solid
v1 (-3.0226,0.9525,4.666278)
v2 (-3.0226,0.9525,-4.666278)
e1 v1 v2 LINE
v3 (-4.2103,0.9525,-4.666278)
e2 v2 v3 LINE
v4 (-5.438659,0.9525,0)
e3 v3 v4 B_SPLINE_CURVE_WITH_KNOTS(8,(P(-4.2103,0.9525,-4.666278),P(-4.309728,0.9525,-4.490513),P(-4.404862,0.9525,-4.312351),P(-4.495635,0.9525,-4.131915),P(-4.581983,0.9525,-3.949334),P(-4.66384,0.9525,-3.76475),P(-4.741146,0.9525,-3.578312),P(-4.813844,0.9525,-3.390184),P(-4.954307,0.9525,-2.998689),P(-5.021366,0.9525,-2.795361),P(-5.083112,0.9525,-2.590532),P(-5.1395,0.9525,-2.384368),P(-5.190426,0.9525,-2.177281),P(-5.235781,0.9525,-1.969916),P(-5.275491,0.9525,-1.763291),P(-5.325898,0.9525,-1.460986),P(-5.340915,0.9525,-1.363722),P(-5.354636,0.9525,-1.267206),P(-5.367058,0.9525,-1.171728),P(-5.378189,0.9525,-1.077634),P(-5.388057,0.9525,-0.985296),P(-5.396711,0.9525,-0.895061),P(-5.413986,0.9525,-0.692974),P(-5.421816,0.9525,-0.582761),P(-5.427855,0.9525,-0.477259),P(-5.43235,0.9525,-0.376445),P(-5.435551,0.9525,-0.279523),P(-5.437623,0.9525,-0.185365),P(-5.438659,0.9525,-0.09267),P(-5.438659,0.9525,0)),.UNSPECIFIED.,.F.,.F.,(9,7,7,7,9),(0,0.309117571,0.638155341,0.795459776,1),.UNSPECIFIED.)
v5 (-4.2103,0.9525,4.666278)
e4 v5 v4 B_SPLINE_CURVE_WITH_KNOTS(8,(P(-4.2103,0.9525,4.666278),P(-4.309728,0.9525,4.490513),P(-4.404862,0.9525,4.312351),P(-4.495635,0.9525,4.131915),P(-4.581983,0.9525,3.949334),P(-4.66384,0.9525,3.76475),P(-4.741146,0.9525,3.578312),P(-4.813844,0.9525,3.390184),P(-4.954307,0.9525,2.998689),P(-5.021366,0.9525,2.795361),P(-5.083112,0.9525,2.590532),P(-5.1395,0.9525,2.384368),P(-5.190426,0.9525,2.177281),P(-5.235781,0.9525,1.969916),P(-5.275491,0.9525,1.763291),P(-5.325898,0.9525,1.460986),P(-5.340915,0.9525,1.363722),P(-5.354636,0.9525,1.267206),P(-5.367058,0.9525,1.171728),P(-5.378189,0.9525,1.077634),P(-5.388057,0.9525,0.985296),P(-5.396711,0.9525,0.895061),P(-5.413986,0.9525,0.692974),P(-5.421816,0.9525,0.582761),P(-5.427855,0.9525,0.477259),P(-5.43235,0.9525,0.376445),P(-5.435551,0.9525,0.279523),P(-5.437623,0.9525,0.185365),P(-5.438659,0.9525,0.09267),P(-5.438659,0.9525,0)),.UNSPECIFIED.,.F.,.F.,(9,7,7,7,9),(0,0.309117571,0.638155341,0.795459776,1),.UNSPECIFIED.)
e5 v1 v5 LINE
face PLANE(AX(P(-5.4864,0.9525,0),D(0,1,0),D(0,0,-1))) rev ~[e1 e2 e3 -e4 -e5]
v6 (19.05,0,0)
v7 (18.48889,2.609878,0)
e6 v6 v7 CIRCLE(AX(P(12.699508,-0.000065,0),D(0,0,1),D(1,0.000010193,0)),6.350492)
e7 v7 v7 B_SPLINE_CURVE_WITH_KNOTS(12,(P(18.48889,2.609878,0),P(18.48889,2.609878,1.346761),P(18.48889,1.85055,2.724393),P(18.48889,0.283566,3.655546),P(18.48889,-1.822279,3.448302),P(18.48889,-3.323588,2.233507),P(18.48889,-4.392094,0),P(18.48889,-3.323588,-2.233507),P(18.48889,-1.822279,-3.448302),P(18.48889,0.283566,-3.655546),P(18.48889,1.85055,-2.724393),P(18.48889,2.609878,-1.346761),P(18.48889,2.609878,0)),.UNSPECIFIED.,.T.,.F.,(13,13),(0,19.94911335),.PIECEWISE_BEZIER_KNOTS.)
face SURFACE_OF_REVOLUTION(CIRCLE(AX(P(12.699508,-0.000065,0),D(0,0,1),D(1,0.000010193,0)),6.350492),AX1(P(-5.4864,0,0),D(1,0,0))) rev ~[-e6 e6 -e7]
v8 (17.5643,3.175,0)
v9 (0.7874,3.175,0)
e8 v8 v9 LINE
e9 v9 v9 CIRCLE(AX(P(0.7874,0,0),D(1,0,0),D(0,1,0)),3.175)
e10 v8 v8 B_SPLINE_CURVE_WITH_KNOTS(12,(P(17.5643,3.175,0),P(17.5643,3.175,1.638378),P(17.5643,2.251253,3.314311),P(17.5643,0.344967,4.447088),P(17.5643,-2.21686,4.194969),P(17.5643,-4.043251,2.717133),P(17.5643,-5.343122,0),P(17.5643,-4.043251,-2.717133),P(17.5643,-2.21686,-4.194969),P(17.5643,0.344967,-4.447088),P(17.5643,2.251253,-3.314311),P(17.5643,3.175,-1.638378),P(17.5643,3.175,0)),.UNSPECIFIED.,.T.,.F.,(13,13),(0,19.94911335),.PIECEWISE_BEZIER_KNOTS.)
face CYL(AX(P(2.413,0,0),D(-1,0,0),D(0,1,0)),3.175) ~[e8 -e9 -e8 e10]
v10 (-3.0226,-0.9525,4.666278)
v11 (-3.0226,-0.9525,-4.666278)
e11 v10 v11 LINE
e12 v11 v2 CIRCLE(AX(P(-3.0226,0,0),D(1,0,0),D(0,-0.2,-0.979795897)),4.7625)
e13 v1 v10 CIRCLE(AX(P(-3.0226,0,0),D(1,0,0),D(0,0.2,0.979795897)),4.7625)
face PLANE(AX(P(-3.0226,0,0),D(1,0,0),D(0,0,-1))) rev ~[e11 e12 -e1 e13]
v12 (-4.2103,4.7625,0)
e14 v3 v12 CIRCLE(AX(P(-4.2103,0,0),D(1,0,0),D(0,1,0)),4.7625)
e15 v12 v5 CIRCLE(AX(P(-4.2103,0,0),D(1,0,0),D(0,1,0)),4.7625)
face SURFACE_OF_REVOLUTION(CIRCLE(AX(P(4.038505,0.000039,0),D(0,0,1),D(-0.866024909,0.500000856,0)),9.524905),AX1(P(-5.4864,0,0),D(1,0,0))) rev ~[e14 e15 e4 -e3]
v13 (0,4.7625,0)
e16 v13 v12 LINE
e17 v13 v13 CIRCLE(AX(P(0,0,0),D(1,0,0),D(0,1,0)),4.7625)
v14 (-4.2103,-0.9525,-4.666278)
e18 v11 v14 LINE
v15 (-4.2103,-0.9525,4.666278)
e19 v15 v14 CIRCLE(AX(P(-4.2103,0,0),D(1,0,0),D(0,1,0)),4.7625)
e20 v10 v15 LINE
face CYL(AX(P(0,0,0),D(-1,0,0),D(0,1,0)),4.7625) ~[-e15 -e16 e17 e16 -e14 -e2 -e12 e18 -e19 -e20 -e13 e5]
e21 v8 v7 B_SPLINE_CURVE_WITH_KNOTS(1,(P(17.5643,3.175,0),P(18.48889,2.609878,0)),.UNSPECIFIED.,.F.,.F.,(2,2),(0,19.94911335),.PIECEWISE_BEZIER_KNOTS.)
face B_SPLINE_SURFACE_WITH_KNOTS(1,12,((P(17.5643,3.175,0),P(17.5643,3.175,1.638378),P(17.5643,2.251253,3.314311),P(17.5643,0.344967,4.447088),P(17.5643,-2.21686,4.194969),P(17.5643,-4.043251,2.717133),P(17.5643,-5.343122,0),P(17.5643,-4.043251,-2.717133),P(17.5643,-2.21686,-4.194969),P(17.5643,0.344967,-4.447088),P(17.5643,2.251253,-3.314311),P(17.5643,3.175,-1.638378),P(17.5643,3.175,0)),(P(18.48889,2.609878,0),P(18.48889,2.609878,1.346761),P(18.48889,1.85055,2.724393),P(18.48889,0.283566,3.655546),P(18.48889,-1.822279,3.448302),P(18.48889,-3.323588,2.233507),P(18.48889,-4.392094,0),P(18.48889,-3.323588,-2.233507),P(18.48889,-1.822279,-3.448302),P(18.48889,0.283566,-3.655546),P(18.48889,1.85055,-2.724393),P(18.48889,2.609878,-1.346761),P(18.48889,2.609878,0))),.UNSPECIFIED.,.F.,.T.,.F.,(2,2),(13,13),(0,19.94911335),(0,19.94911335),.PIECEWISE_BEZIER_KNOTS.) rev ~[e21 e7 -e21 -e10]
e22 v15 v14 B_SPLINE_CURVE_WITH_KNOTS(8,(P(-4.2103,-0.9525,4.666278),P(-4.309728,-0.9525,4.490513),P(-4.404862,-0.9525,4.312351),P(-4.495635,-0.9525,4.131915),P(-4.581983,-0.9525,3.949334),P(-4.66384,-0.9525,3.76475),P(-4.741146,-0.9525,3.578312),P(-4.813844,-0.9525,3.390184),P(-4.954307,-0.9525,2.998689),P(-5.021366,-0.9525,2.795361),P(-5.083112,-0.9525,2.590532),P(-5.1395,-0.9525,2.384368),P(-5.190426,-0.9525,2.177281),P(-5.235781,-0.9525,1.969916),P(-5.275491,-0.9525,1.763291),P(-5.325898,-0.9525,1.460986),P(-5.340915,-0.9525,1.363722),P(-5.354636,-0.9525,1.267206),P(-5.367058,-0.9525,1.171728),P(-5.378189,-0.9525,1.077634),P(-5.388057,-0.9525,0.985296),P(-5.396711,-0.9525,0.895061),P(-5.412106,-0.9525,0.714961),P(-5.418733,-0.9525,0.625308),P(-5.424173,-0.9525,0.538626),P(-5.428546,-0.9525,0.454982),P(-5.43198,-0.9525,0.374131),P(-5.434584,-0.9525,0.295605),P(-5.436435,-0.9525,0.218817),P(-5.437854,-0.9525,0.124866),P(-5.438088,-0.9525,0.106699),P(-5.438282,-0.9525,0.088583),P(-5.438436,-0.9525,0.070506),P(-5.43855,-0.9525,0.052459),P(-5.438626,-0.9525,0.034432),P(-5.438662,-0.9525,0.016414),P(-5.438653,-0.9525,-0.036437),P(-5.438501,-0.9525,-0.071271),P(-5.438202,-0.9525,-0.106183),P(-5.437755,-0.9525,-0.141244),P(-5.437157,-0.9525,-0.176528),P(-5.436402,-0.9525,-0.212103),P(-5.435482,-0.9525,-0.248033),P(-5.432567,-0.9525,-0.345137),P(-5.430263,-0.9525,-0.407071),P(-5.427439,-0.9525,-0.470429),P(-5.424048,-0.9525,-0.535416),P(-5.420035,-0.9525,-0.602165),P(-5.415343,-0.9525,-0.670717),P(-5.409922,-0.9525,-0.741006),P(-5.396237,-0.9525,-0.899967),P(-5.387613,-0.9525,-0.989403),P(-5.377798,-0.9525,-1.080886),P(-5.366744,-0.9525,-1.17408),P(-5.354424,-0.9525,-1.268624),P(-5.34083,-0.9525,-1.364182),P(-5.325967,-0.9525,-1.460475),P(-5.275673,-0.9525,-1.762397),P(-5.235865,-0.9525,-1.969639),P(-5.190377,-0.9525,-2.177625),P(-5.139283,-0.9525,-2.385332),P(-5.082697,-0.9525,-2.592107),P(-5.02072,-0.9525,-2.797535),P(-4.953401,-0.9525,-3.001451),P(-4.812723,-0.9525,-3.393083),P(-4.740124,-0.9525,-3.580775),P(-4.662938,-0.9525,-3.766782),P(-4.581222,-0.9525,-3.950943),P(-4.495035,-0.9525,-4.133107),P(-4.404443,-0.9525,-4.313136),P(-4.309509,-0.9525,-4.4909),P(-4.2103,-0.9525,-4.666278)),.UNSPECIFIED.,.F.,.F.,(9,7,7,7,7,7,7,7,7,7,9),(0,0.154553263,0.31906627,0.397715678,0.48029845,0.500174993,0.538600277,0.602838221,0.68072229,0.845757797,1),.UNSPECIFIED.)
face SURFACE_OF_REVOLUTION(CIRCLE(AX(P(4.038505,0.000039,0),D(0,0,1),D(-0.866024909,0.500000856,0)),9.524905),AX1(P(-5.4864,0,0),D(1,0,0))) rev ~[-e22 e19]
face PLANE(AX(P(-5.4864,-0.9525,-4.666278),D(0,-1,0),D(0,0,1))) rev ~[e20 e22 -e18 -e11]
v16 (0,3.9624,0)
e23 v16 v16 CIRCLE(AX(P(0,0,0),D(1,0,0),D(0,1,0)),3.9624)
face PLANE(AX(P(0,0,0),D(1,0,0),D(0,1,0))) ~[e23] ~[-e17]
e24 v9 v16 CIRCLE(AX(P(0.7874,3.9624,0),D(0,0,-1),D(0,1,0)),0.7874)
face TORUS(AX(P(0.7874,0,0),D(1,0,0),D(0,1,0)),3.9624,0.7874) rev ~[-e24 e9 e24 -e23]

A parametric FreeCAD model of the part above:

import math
import FreeCAD as App
import Part
import Sketcher

V = App.Vector
Q = App.Units.Quantity


def edges_at(feature, points):
    """Names of the edges that pass closest to the given points."""
    edges = feature.Shape.Edges
    near = lambda p: min(range(len(edges)), key=lambda i: edges[i].distToShape(Part.Vertex(*p))[0])
    return sorted({f"Edge{near(p) + 1}" for p in points})

doc = App.newDocument("Part")
body = doc.addObject("PartDesign::Body", "Body")

# Sketch on XY plane
sketch1 = body.newObject("Sketcher::SketchObject", "Sketch")
sketch1.AttachmentSupport = (doc.getObject("XY_Plane"), [""])
sketch1.MapMode = "FlatFace"
sketch1.addGeometry([
    Part.ArcOfCircle(Part.Circle(V(4.0386, 0, 0), V(0, 0, 1), 9.525007), math.radians(150.000024), math.radians(180)),  # 0
    Part.LineSegment(V(-5.4864, 0, 0), V(19.05, 0, 0)),  # 1
    Part.LineSegment(V(19.05, 0, 0), V(19.05, 3.175, 0)),  # 2
    Part.LineSegment(V(19.05, 3.175, 0), V(0, 3.175, 0)),  # 3
    Part.LineSegment(V(0, 3.175, 0), V(0, 4.7625, 0)),  # 4
    Part.LineSegment(V(0, 4.7625, 0), V(-4.2103, 4.7625, 0)),  # 5
], False)
sketch1.addConstraint([
    Sketcher.Constraint("Coincident", 0, 2, 1, 1),
    Sketcher.Constraint("Coincident", 1, 2, 2, 1),
    Sketcher.Constraint("Coincident", 2, 2, 3, 1),
    Sketcher.Constraint("Coincident", 3, 2, 4, 1),
    Sketcher.Constraint("Coincident", 4, 2, 5, 1),
    Sketcher.Constraint("Coincident", 5, 2, 0, 1),
    Sketcher.Constraint("Horizontal", 1),
    Sketcher.Constraint("Vertical", 2),
    Sketcher.Constraint("Horizontal", 3),
    Sketcher.Constraint("Vertical", 4),
    Sketcher.Constraint("Horizontal", 5),
    Sketcher.Constraint("PointOnObject", 0, 3, -1),
    Sketcher.Constraint("PointOnObject", 0, 2, -1),
    Sketcher.Constraint("PointOnObject", 3, 2, -2),
    Sketcher.Constraint("Radius", 0, Q("0.375 in")),
    Sketcher.Constraint("DistanceX", 3, 2, 3, 1, Q("0.75 in")),
    Sketcher.Constraint("DistanceX", 0, 2, -1, 1, Q("0.216 in")),
    Sketcher.Constraint("DistanceY", 2, 1, 2, 2, Q("0.125 in")),
    Sketcher.Constraint("DistanceY", 4, 1, 4, 2, Q("0.0625 in")),
])
revolution = body.newObject("PartDesign::Revolution", "Revolution")
revolution.Profile = sketch1
revolution.ReferenceAxis = (sketch1, ["H_Axis"])
revolution.Angle = 360

# Sketch on YZ plane
sketch2 = body.newObject("Sketcher::SketchObject", "Sketch001")
sketch2.AttachmentSupport = (doc.getObject("YZ_Plane"), [""])
sketch2.MapMode = "FlatFace"
sketch2.AttachmentOffset = App.Placement(V(0, 0, -0.216 * 25.4), App.Rotation())
sketch2.addGeometry([
    Part.LineSegment(V(0.9525, 4.7625, 0), V(-0.9525, 4.7625, 0)),
    Part.LineSegment(V(-0.9525, 4.7625, 0), V(-0.9525, -4.7625, 0)),
    Part.LineSegment(V(-0.9525, -4.7625, 0), V(0.9525, -4.7625, 0)),
    Part.LineSegment(V(0.9525, -4.7625, 0), V(0.9525, 4.7625, 0)),
], False)
sketch2.addConstraint([
    Sketcher.Constraint("Coincident", 0, 2, 1, 1),
    Sketcher.Constraint("Coincident", 1, 2, 2, 1),
    Sketcher.Constraint("Coincident", 2, 2, 3, 1),
    Sketcher.Constraint("Coincident", 3, 2, 0, 1),
    Sketcher.Constraint("Horizontal", 0),
    Sketcher.Constraint("Vertical", 1),
    Sketcher.Constraint("Horizontal", 2),
    Sketcher.Constraint("Vertical", 3),
    Sketcher.Constraint("Symmetric", 0, 2, 2, 2, -1, 1),
    Sketcher.Constraint("DistanceX", 0, 2, 0, 1, Q("0.075 in")),
    Sketcher.Constraint("DistanceY", 1, 2, 1, 1, Q("0.375 in")),
])
pocket1 = body.newObject("PartDesign::Pocket", "Pocket")
pocket1.Profile = sketch2
pocket1.Length = Q("0.097 in")
pocket1.Reversed = True

# Sketch on XY plane
sketch3 = body.newObject("Sketcher::SketchObject", "Sketch002")
sketch3.AttachmentSupport = (doc.getObject("XY_Plane"), [""])
sketch3.MapMode = "FlatFace"
sketch3.addGeometry([
    Part.ArcOfCircle(Part.Circle(V(12.7, 0, 0), V(0, 0, 1), 6.35), math.radians(0), math.radians(29.999825)),
    Part.LineSegment(V(19.05, 0, 0), V(19.05, 3.175, 0)),
    Part.LineSegment(V(19.05, 3.175, 0), V(18.1993, 3.175, 0)),
], False)
sketch3.addConstraint([
    Sketcher.Constraint("Tangent", 0, 1, 1, 1),
    Sketcher.Constraint("Coincident", 1, 2, 2, 1),
    Sketcher.Constraint("Coincident", 2, 2, 0, 2),
    Sketcher.Constraint("Vertical", 1),
    Sketcher.Constraint("Horizontal", 2),
    Sketcher.Constraint("PointOnObject", 0, 3, -1),
    Sketcher.Constraint("Radius", 0, Q("0.25 in")),
    Sketcher.Constraint("DistanceX", -1, 1, 0, 3, Q("0.5 in")),
    Sketcher.Constraint("DistanceY", 1, 1, 1, 2, Q("0.125 in")),
])
groove = body.newObject("PartDesign::Groove", "Groove")
groove.Profile = sketch3
groove.ReferenceAxis = (sketch3, ["H_Axis"])
groove.Angle = 360
doc.recompute()

chamfer = body.newObject("PartDesign::Chamfer", "Chamfer")
chamfer.Base = (groove, edges_at(groove, [(18.199, -3.175, 0)]))
chamfer.Size = Q("0.025 in")
doc.recompute()

fillet = body.newObject("PartDesign::Fillet", "Fillet")
fillet.Base = (chamfer, edges_at(chamfer, [(0, -3.175, 0)]))
fillet.Radius = Q("0.031 in")

doc.recompute()
